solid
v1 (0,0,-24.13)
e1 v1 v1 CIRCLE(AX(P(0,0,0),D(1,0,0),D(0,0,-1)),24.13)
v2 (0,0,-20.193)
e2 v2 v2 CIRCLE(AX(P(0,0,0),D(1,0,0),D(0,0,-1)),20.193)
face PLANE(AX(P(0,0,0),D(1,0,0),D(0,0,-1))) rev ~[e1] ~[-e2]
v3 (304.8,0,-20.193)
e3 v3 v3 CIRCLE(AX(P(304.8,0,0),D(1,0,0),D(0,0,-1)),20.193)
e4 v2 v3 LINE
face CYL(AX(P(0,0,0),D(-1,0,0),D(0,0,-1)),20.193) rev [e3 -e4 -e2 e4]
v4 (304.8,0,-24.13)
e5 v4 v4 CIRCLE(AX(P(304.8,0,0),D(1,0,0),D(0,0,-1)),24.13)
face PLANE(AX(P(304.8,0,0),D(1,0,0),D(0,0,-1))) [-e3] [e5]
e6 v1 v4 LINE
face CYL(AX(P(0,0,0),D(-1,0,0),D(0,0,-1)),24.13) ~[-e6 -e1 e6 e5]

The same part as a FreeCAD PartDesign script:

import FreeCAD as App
import Part
import Sketcher
Q = App.Units.Quantity

doc = App.newDocument("Part")
body = doc.addObject("PartDesign::Body", "Body")

# Sketch on YZ plane
sketch1 = doc.addObject("Sketcher::SketchObject", "Sketch")
body.addObject(sketch1)
sketch1.AttachmentSupport = (doc.YZ_Plane, [""])
sketch1.MapMode = "FlatFace"
sketch1.addGeometry([
    Part.Circle(App.Vector(0, 0, 0), App.Vector(0, 0, 1), 24),
    Part.Circle(App.Vector(0, 0, 0), App.Vector(0, 0, 1), 20),
], False)
sketch1.addConstraint([
    Sketcher.Constraint("Coincident", 0, 3, -1, 1),
    Sketcher.Constraint("Coincident", 1, 3, -1, 1),
    Sketcher.Constraint("Diameter", 0, Q("1.9 in")),
    Sketcher.Constraint("Diameter", 1, Q("1.59 in")),
])
pad1 = doc.addObject("PartDesign::Pad", "Pad")
body.addObject(pad1)
pad1.Profile = sketch1
pad1.Length = Q("12 in")

doc.recompute()
